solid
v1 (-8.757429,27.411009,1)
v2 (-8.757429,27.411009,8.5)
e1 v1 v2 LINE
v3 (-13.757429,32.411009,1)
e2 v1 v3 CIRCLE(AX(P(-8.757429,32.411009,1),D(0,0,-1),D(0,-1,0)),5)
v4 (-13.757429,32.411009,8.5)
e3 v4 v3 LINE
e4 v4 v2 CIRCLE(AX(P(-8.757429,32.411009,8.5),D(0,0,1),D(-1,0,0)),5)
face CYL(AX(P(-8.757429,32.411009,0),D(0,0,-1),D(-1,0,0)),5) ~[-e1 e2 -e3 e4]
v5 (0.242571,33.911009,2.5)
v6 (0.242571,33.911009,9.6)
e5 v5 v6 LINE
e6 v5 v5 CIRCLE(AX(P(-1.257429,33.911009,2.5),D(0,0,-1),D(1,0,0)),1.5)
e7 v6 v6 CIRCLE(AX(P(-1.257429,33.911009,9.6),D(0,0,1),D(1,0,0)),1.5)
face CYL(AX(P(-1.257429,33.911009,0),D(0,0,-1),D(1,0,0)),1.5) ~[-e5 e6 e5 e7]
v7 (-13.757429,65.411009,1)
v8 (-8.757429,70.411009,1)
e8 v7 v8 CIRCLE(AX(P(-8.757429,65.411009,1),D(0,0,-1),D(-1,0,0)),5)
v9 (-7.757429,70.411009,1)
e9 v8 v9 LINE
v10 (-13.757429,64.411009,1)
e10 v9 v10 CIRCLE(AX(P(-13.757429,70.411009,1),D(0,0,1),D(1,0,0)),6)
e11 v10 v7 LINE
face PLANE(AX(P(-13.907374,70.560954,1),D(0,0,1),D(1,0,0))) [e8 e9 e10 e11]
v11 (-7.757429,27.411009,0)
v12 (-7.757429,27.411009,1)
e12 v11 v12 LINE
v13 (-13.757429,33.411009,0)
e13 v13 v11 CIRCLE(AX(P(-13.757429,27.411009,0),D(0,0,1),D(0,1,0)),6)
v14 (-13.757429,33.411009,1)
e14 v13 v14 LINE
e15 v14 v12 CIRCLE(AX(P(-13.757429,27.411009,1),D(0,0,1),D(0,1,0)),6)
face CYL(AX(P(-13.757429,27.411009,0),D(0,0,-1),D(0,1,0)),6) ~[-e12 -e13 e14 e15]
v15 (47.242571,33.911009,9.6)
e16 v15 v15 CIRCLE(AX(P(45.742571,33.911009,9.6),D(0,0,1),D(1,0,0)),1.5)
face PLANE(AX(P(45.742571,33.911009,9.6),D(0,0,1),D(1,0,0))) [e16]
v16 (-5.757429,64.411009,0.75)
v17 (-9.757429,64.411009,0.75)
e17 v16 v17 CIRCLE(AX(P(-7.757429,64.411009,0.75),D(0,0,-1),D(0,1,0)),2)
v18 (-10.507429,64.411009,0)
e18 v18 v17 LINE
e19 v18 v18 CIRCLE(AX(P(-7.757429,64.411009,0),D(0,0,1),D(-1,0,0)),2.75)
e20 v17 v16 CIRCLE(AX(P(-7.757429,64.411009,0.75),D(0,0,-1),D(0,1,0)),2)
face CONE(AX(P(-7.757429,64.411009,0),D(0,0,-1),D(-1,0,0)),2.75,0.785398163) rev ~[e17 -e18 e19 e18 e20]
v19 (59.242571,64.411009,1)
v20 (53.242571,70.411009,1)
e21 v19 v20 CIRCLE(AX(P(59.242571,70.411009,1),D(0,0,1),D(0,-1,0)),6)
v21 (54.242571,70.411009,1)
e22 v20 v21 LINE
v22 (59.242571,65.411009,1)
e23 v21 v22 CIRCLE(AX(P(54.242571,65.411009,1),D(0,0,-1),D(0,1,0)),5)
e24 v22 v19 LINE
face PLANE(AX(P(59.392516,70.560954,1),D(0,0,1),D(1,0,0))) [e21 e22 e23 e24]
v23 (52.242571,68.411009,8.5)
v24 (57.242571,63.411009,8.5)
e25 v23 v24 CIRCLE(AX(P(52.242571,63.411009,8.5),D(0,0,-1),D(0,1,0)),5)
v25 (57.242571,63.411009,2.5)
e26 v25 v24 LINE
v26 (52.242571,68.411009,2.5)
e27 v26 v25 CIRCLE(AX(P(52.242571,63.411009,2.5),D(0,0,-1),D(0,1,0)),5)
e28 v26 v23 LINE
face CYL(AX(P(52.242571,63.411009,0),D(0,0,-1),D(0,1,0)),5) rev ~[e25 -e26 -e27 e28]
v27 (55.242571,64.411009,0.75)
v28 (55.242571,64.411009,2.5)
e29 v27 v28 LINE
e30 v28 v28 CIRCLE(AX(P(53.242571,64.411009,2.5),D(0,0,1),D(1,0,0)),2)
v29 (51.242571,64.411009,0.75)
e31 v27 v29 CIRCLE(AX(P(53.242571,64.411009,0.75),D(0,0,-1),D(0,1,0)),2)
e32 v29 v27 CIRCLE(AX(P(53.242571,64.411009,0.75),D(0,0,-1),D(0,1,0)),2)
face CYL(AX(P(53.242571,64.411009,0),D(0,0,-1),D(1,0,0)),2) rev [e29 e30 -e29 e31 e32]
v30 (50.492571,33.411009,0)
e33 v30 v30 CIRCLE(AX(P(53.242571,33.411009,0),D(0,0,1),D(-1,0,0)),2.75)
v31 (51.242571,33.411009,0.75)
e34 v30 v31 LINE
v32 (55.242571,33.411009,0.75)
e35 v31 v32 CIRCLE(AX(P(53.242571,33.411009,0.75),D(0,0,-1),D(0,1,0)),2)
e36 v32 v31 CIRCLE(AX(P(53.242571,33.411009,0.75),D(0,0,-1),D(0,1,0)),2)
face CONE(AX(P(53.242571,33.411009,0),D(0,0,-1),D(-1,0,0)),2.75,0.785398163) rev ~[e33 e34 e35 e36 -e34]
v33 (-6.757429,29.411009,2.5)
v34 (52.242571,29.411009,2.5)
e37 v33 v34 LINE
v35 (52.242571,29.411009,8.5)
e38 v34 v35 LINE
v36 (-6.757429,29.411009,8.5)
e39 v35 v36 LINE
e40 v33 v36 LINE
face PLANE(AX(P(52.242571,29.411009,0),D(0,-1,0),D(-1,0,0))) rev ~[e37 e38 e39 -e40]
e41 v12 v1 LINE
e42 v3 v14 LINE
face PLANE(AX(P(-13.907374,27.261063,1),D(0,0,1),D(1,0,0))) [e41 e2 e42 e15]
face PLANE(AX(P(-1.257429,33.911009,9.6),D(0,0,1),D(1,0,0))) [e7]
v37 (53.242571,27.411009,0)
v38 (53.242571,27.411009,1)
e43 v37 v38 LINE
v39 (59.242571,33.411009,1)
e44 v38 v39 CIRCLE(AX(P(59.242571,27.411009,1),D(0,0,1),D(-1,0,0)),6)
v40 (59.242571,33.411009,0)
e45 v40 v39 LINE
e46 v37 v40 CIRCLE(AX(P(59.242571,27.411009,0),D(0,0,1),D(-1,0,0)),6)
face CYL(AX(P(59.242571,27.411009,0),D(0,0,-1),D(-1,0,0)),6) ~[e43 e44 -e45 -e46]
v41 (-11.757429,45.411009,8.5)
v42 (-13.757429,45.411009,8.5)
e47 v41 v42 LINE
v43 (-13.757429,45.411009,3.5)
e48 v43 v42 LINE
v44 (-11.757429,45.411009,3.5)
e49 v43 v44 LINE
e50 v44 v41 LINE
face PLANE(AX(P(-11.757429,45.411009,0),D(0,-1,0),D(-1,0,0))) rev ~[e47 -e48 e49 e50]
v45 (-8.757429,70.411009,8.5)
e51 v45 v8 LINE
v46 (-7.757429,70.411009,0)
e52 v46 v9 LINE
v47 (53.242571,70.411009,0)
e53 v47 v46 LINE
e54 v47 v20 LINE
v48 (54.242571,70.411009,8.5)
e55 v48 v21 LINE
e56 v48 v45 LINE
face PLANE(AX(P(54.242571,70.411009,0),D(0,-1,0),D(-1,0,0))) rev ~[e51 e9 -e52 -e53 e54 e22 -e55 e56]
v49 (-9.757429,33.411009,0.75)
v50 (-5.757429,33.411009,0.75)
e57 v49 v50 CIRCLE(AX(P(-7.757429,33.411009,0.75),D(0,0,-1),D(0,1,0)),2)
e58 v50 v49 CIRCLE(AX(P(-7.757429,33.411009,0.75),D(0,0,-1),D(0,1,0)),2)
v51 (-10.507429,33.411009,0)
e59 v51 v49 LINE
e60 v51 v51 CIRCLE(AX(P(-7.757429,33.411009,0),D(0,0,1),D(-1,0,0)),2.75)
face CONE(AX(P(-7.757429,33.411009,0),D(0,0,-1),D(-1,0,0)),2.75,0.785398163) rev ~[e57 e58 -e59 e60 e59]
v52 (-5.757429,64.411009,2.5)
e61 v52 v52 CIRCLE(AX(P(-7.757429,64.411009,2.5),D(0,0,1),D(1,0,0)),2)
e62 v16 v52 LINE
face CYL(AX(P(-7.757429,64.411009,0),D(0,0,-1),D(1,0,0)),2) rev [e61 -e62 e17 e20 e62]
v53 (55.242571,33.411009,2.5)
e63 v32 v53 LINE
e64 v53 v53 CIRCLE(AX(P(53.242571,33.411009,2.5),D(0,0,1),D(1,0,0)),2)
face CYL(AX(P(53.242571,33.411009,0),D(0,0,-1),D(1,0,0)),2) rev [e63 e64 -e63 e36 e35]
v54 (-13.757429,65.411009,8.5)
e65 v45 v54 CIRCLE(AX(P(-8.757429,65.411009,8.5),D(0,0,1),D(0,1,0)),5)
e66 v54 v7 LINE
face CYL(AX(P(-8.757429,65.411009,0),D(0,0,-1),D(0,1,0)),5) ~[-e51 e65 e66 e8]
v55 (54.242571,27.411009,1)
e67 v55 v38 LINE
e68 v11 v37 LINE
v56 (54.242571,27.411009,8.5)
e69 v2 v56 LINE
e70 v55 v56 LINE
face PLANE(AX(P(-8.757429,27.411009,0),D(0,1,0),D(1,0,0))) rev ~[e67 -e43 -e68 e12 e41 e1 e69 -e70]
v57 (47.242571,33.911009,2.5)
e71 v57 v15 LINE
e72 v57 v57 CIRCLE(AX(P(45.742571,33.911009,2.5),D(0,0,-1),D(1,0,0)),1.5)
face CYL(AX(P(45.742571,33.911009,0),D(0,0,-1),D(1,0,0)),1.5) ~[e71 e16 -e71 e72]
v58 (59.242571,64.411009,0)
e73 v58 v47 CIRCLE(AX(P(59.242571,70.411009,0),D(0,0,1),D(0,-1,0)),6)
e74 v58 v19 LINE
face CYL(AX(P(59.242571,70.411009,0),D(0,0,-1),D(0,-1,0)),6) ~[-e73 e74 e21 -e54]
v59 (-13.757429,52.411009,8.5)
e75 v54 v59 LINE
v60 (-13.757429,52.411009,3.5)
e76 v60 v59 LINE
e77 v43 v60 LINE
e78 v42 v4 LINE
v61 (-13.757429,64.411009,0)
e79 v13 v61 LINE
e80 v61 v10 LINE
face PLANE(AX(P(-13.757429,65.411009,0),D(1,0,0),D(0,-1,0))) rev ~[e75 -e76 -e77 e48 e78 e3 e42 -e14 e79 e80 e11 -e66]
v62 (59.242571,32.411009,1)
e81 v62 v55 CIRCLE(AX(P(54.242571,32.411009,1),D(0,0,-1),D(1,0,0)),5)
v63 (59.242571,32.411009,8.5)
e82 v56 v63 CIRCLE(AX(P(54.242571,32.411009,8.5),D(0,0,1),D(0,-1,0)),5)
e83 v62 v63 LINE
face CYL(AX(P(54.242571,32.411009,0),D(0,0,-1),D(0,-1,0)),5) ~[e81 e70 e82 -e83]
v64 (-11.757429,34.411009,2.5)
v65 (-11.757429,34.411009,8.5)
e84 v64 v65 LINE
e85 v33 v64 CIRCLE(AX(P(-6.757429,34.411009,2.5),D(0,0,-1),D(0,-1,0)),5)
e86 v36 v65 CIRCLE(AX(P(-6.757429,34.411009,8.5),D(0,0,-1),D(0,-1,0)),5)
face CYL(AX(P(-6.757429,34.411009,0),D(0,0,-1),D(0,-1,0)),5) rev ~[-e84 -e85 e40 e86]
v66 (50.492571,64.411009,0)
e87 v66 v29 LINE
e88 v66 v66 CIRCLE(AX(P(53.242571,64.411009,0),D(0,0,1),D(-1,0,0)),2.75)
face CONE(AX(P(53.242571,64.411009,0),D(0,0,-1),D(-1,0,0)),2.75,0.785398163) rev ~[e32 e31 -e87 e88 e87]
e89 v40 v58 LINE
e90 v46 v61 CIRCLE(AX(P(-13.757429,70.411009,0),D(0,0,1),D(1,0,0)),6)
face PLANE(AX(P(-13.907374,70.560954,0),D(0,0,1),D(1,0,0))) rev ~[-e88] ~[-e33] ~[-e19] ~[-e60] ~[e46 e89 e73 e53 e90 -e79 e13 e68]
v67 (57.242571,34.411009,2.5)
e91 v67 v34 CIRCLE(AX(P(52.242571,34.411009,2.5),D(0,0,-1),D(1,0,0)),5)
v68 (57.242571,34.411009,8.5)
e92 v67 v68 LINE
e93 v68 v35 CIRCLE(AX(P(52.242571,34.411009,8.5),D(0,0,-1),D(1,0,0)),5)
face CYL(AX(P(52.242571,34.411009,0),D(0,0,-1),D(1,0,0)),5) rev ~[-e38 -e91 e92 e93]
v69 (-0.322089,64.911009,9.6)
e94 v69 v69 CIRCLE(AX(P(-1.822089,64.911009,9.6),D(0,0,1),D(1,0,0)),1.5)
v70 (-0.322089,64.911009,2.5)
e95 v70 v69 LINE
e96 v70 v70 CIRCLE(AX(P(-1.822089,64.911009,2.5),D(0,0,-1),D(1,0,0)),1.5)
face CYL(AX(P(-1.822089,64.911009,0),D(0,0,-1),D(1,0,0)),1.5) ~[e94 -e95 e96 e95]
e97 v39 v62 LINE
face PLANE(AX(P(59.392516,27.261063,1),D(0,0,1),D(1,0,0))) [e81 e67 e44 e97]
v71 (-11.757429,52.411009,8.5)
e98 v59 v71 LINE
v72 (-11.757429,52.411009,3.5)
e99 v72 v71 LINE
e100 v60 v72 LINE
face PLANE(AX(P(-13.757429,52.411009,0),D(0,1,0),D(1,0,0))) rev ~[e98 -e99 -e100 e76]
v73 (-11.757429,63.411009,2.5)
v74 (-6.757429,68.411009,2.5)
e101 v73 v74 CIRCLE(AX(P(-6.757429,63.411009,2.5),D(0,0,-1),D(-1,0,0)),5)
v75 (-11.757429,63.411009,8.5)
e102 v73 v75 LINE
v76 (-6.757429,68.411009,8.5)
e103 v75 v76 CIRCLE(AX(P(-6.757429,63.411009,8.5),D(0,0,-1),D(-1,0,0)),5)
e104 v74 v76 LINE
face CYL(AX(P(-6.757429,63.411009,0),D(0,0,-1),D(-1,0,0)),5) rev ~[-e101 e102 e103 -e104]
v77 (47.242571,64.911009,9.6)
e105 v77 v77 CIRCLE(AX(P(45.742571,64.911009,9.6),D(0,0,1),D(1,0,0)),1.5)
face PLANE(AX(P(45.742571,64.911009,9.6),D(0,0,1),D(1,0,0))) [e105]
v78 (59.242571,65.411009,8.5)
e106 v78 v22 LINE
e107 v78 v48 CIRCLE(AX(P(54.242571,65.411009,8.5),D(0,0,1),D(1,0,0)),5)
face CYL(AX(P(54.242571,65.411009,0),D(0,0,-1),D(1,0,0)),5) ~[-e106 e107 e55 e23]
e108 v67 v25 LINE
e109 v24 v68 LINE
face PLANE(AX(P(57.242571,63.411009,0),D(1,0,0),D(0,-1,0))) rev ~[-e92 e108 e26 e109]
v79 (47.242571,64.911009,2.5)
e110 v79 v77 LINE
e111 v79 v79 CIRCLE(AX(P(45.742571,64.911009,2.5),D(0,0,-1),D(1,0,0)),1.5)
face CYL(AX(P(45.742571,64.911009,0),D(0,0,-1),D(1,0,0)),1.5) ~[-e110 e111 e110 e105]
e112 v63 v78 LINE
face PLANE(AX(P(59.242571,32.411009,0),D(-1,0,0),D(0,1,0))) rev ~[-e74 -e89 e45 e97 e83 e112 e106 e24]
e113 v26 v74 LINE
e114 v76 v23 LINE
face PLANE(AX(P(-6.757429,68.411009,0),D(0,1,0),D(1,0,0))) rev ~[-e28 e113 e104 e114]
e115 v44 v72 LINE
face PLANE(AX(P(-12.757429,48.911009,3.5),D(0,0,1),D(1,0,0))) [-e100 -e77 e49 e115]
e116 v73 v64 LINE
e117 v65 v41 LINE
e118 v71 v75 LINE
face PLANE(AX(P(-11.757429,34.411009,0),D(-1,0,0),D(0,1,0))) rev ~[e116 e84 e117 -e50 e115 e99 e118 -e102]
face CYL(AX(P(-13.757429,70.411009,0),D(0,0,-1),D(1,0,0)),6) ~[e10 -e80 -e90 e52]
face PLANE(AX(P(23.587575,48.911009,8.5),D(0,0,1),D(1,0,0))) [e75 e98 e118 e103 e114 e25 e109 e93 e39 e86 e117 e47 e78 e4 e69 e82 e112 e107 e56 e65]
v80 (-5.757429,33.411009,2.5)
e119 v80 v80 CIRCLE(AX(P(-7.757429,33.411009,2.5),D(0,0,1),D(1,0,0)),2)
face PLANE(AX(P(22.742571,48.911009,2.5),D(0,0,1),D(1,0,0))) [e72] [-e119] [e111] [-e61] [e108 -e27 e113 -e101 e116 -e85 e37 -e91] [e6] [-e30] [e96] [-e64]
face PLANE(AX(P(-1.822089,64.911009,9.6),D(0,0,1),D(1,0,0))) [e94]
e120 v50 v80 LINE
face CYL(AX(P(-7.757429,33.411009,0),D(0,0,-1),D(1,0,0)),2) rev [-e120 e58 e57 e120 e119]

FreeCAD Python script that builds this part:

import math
import FreeCAD as App
import Part
import Sketcher
from FreeCAD import Vector
Q = App.Units.Quantity

doc = App.newDocument("Part")
body = doc.addObject("PartDesign::Body", "Body")

sketch1 = body.newObject("Sketcher::SketchObject", "Sketch")
sketch1.AttachmentSupport = (doc.getObject("XY_Plane"), [""])
sketch1.MapMode = "FlatFace"
sketch1.addGeometry(Part.ArcOfCircle(Part.Circle(Vector(-8.8, 32.4, 0), Vector(0, 0, 1), 5), math.radians(-180), math.radians(-90)), False)
sketch1.addGeometry(Part.LineSegment(Vector(-8.8, 27.4, 0), Vector(54.2, 27.4, 0)), False)
sketch1.addGeometry(Part.ArcOfCircle(Part.Circle(Vector(54.2, 32.4, 0), Vector(0, 0, 1), 5), math.radians(-90), math.radians(0)), False)
sketch1.addGeometry(Part.LineSegment(Vector(59.2, 32.4, 0), Vector(59.2, 65.4, 0)), False)
sketch1.addGeometry(Part.ArcOfCircle(Part.Circle(Vector(54.2, 65.4, 0), Vector(0, 0, 1), 5), math.radians(0), math.radians(90)), False)
sketch1.addGeometry(Part.LineSegment(Vector(54.2, 70.4, 0), Vector(-8.8, 70.4, 0)), False)
sketch1.addGeometry(Part.ArcOfCircle(Part.Circle(Vector(-8.8, 65.4, 0), Vector(0, 0, 1), 5), math.radians(90), math.radians(180)), False)
sketch1.addGeometry(Part.LineSegment(Vector(-13.8, 65.4, 0), Vector(-13.8, 32.4, 0)), False)
sketch1.addGeometry(Part.Circle(Vector(-7.8, 33.4, 0), Vector(0, 0, 1), 2), False)
sketch1.addGeometry(Part.Circle(Vector(53.2, 33.4, 0), Vector(0, 0, 1), 2), False)
sketch1.addGeometry(Part.Circle(Vector(-7.8, 64.4, 0), Vector(0, 0, 1), 2), False)
sketch1.addGeometry(Part.Circle(Vector(53.2, 64.4, 0), Vector(0, 0, 1), 2), False)
sketch1.addConstraint(Sketcher.Constraint("Tangent", 0, 2, 1, 1))
sketch1.addConstraint(Sketcher.Constraint("Tangent", 1, 2, 2, 1))
sketch1.addConstraint(Sketcher.Constraint("Tangent", 2, 2, 3, 1))
sketch1.addConstraint(Sketcher.Constraint("Tangent", 3, 2, 4, 1))
sketch1.addConstraint(Sketcher.Constraint("Tangent", 4, 2, 5, 1))
sketch1.addConstraint(Sketcher.Constraint("Tangent", 5, 2, 6, 1))
sketch1.addConstraint(Sketcher.Constraint("Tangent", 6, 2, 7, 1))
sketch1.addConstraint(Sketcher.Constraint("Tangent", 7, 2, 0, 1))
sketch1.addConstraint(Sketcher.Constraint("Horizontal", 1))
sketch1.addConstraint(Sketcher.Constraint("Vertical", 3))
sketch1.addConstraint(Sketcher.Constraint("Horizontal", 5))
sketch1.addConstraint(Sketcher.Constraint("Vertical", 7))
sketch1.addConstraint(Sketcher.Constraint("Equal", 0, 2))
sketch1.addConstraint(Sketcher.Constraint("Equal", 2, 4))
sketch1.addConstraint(Sketcher.Constraint("Equal", 4, 6))
sketch1.addConstraint(Sketcher.Constraint("Equal", 8, 9))
sketch1.addConstraint(Sketcher.Constraint("Equal", 9, 10))
sketch1.addConstraint(Sketcher.Constraint("Equal", 10, 11))
sketch1.addConstraint(Sketcher.Constraint("Horizontal", 8, 3, 9, 3))
sketch1.addConstraint(Sketcher.Constraint("Horizontal", 10, 3, 11, 3))
sketch1.addConstraint(Sketcher.Constraint("Vertical", 8, 3, 10, 3))
sketch1.addConstraint(Sketcher.Constraint("Vertical", 9, 3, 11, 3))
sketch1.addConstraint(Sketcher.Constraint("Diameter", 8, Q("4 mm")))
sketch1.addConstraint(Sketcher.Constraint("Radius", 0, Q("5 mm")))
sketch1.addConstraint(Sketcher.Constraint("DistanceX", 1, 1, 1, 2, Q("63 mm")))
sketch1.addConstraint(Sketcher.Constraint("DistanceY", 3, 1, 3, 2, Q("33 mm")))
sketch1.addConstraint(Sketcher.Constraint("DistanceX", 0, 3, 8, 3, Q("1 mm")))
sketch1.addConstraint(Sketcher.Constraint("DistanceY", 0, 3, 8, 3, Q("1 mm")))
sketch1.addConstraint(Sketcher.Constraint("DistanceX", 9, 3, 2, 3, Q("1 mm")))
sketch1.addConstraint(Sketcher.Constraint("DistanceY", 10, 3, 6, 3, Q("1 mm")))
sketch1.addConstraint(Sketcher.Constraint("DistanceX", 0, 3, -1, 1, Q("8.757429 mm")))
sketch1.addConstraint(Sketcher.Constraint("DistanceY", -1, 1, 0, 3, Q("32.411009 mm")))
pad1 = body.newObject("PartDesign::Pad", "Pad")
pad1.Profile = sketch1
pad1.Length = 2.5

sketch2 = body.newObject("Sketcher::SketchObject", "Sketch001")
sketch2.AttachmentSupport = (doc.getObject("XY_Plane"), [""])
sketch2.MapMode = "FlatFace"
sketch2.addGeometry(Part.ArcOfCircle(Part.Circle(Vector(-6.8, 63.4, 0), Vector(0, 0, 1), 5), math.radians(90), math.radians(180)), False)
sketch2.addGeometry(Part.LineSegment(Vector(-6.8, 68.4, 0), Vector(52.2, 68.4, 0)), False)
sketch2.addGeometry(Part.ArcOfCircle(Part.Circle(Vector(52.2, 63.4, 0), Vector(0, 0, 1), 5), math.radians(0), math.radians(90)), False)
sketch2.addGeometry(Part.LineSegment(Vector(57.2, 63.4, 0), Vector(57.2, 34.4, 0)), False)
sketch2.addGeometry(Part.ArcOfCircle(Part.Circle(Vector(52.2, 34.4, 0), Vector(0, 0, 1), 5), math.radians(-90), math.radians(0)), False)
sketch2.addGeometry(Part.LineSegment(Vector(52.2, 29.4, 0), Vector(-6.8, 29.4, 0)), False)
sketch2.addGeometry(Part.ArcOfCircle(Part.Circle(Vector(-6.8, 34.4, 0), Vector(0, 0, 1), 5), math.radians(-180), math.radians(-90)), False)
sketch2.addGeometry(Part.LineSegment(Vector(-11.8, 34.4, 0), Vector(-11.8, 45.4, 0)), False)
sketch2.addGeometry(Part.LineSegment(Vector(-11.8, 45.4, 0), Vector(-13.8, 45.4, 0)), False)
sketch2.addGeometry(Part.LineSegment(Vector(-13.8, 45.4, 0), Vector(-13.8, 32.4, 0)), False)
sketch2.addGeometry(Part.ArcOfCircle(Part.Circle(Vector(-8.8, 32.4, 0), Vector(0, 0, 1), 5), math.radians(-180), math.radians(-90)), False)
sketch2.addGeometry(Part.LineSegment(Vector(-8.8, 27.4, 0), Vector(54.2, 27.4, 0)), False)
sketch2.addGeometry(Part.ArcOfCircle(Part.Circle(Vector(54.2, 32.4, 0), Vector(0, 0, 1), 5), math.radians(-90), math.radians(0)), False)
sketch2.addGeometry(Part.LineSegment(Vector(59.2, 32.4, 0), Vector(59.2, 65.4, 0)), False)
sketch2.addGeometry(Part.ArcOfCircle(Part.Circle(Vector(54.2, 65.4, 0), Vector(0, 0, 1), 5), math.radians(0), math.radians(90)), False)
sketch2.addGeometry(Part.LineSegment(Vector(54.2, 70.4, 0), Vector(-8.8, 70.4, 0)), False)
sketch2.addGeometry(Part.ArcOfCircle(Part.Circle(Vector(-8.8, 65.4, 0), Vector(0, 0, 1), 5), math.radians(90), math.radians(180)), False)
sketch2.addGeometry(Part.LineSegment(Vector(-13.8, 65.4, 0), Vector(-13.8, 52.4, 0)), False)
sketch2.addGeometry(Part.LineSegment(Vector(-13.8, 52.4, 0), Vector(-11.8, 52.4, 0)), False)
sketch2.addGeometry(Part.LineSegment(Vector(-11.8, 52.4, 0), Vector(-11.8, 63.4, 0)), False)
sketch2.addConstraint(Sketcher.Constraint("Tangent", 0, 1, 1, 1))
sketch2.addConstraint(Sketcher.Constraint("Tangent", 1, 2, 2, 2))
sketch2.addConstraint(Sketcher.Constraint("Tangent", 2, 1, 3, 1))
sketch2.addConstraint(Sketcher.Constraint("Tangent", 3, 2, 4, 2))
sketch2.addConstraint(Sketcher.Constraint("Tangent", 4, 1, 5, 1))
sketch2.addConstraint(Sketcher.Constraint("Tangent", 5, 2, 6, 2))
sketch2.addConstraint(Sketcher.Constraint("Tangent", 6, 1, 7, 1))
sketch2.addConstraint(Sketcher.Constraint("Coincident", 7, 2, 8, 1))
sketch2.addConstraint(Sketcher.Constraint("Coincident", 8, 2, 9, 1))
sketch2.addConstraint(Sketcher.Constraint("Tangent", 9, 2, 10, 1))
sketch2.addConstraint(Sketcher.Constraint("Tangent", 10, 2, 11, 1))
sketch2.addConstraint(Sketcher.Constraint("Tangent", 11, 2, 12, 1))
sketch2.addConstraint(Sketcher.Constraint("Tangent", 12, 2, 13, 1))
sketch2.addConstraint(Sketcher.Constraint("Tangent", 13, 2, 14, 1))
sketch2.addConstraint(Sketcher.Constraint("Tangent", 14, 2, 15, 1))
sketch2.addConstraint(Sketcher.Constraint("Tangent", 15, 2, 16, 1))
sketch2.addConstraint(Sketcher.Constraint("Tangent", 16, 2, 17, 1))
sketch2.addConstraint(Sketcher.Constraint("Coincident", 17, 2, 18, 1))
sketch2.addConstraint(Sketcher.Constraint("Coincident", 18, 2, 19, 1))
sketch2.addConstraint(Sketcher.Constraint("Tangent", 19, 2, 0, 2))
sketch2.addConstraint(Sketcher.Constraint("Horizontal", 1))
sketch2.addConstraint(Sketcher.Constraint("Vertical", 3))
sketch2.addConstraint(Sketcher.Constraint("Horizontal", 5))
sketch2.addConstraint(Sketcher.Constraint("Vertical", 7))
sketch2.addConstraint(Sketcher.Constraint("Horizontal", 8))
sketch2.addConstraint(Sketcher.Constraint("Vertical", 9))
sketch2.addConstraint(Sketcher.Constraint("Horizontal", 11))
sketch2.addConstraint(Sketcher.Constraint("Vertical", 13))
sketch2.addConstraint(Sketcher.Constraint("Horizontal", 15))
sketch2.addConstraint(Sketcher.Constraint("Vertical", 17))
sketch2.addConstraint(Sketcher.Constraint("Horizontal", 18))
sketch2.addConstraint(Sketcher.Constraint("Vertical", 19))
sketch2.addConstraint(Sketcher.Constraint("Equal", 0, 2))
sketch2.addConstraint(Sketcher.Constraint("Equal", 2, 4))
sketch2.addConstraint(Sketcher.Constraint("Equal", 4, 6))
sketch2.addConstraint(Sketcher.Constraint("Equal", 6, 10))
sketch2.addConstraint(Sketcher.Constraint("Equal", 10, 12))
sketch2.addConstraint(Sketcher.Constraint("Equal", 12, 14))
sketch2.addConstraint(Sketcher.Constraint("Equal", 14, 16))
sketch2.addConstraint(Sketcher.Constraint("Vertical", 0, 3, 6, 3))
sketch2.addConstraint(Sketcher.Constraint("Vertical", 10, 3, 16, 3))
sketch2.addConstraint(Sketcher.Constraint("Equal", 9, 17))
sketch2.addConstraint(Sketcher.Constraint("Equal", 7, 19))
sketch2.addConstraint(Sketcher.Constraint("Radius", 0, Q("5 mm")))
sketch2.addConstraint(Sketcher.Constraint("DistanceX", 1, 1, 1, 2, Q("59 mm")))
sketch2.addConstraint(Sketcher.Constraint("DistanceX", 8, 2, 8, 1, Q("2 mm")))
sketch2.addConstraint(Sketcher.Constraint("DistanceX", 11, 1, 11, 2, Q("63 mm")))
sketch2.addConstraint(Sketcher.Constraint("DistanceY", 3, 2, 3, 1, Q("29 mm")))
sketch2.addConstraint(Sketcher.Constraint("DistanceY", 7, 1, 7, 2, Q("11 mm")))
sketch2.addConstraint(Sketcher.Constraint("DistanceY", 9, 2, 9, 1, Q("13 mm")))
sketch2.addConstraint(Sketcher.Constraint("DistanceX", 0, 3, -1, 1, Q("6.757429 mm")))
sketch2.addConstraint(Sketcher.Constraint("DistanceY", -1, 1, 0, 3, Q("63.411009 mm")))
pad2 = body.newObject("PartDesign::Pad", "Pad001")
pad2.Profile = sketch2
pad2.Length = 8.5

sketch3 = body.newObject("Sketcher::SketchObject", "Sketch002")
sketch3.AttachmentSupport = (doc.getObject("XY_Plane"), [""])
sketch3.MapMode = "FlatFace"
sketch3.addGeometry(Part.Circle(Vector(-1.8, 64.9, 0), Vector(0, 0, 1), 1.5), False)
sketch3.addGeometry(Part.Circle(Vector(-1.3, 33.9, 0), Vector(0, 0, 1), 1.5), False)
sketch3.addGeometry(Part.Circle(Vector(45.7, 33.9, 0), Vector(0, 0, 1), 1.5), False)
sketch3.addGeometry(Part.Circle(Vector(45.7, 64.9, 0), Vector(0, 0, 1), 1.5), False)
sketch3.addConstraint(Sketcher.Constraint("Equal", 0, 1))
sketch3.addConstraint(Sketcher.Constraint("Equal", 1, 2))
sketch3.addConstraint(Sketcher.Constraint("Equal", 2, 3))
sketch3.addConstraint(Sketcher.Constraint("Horizontal", 1, 3, 2, 3))
sketch3.addConstraint(Sketcher.Constraint("Horizontal", 0, 3, 3, 3))
sketch3.addConstraint(Sketcher.Constraint("Vertical", 2, 3, 3, 3))
sketch3.addConstraint(Sketcher.Constraint("Diameter", 0, Q("3 mm")))
sketch3.addConstraint(Sketcher.Constraint("DistanceY", 1, 3, 0, 3, Q("31 mm")))
sketch3.addConstraint(Sketcher.Constraint("DistanceX", 1, 3, 2, 3, Q("47 mm")))
sketch3.addConstraint(Sketcher.Constraint("DistanceX", 0, 3, -1, 1, Q("1.822089 mm")))
sketch3.addConstraint(Sketcher.Constraint("DistanceY", -1, 1, 0, 3, Q("64.911009 mm")))
sketch3.addConstraint(Sketcher.Constraint("DistanceX", 1, 3, -1, 1, Q("1.257429 mm")))
pad3 = body.newObject("PartDesign::Pad", "Pad002")
pad3.Profile = sketch3
pad3.Length = 9.6

sketch4 = body.newObject("Sketcher::SketchObject", "Sketch003")
sketch4.AttachmentSupport = (doc.getObject("XY_Plane"), [""])
sketch4.MapMode = "FlatFace"
sketch4.addGeometry(Part.LineSegment(Vector(-13.8, 52.4, 0), Vector(-13.8, 45.4, 0)), False)
sketch4.addGeometry(Part.LineSegment(Vector(-13.8, 45.4, 0), Vector(-11.8, 45.4, 0)), False)
sketch4.addGeometry(Part.LineSegment(Vector(-11.8, 45.4, 0), Vector(-11.8, 52.4, 0)), False)
sketch4.addGeometry(Part.LineSegment(Vector(-11.8, 52.4, 0), Vector(-13.8, 52.4, 0)), False)
sketch4.addConstraint(Sketcher.Constraint("Coincident", 0, 2, 1, 1))
sketch4.addConstraint(Sketcher.Constraint("Coincident", 1, 2, 2, 1))
sketch4.addConstraint(Sketcher.Constraint("Coincident", 2, 2, 3, 1))
sketch4.addConstraint(Sketcher.Constraint("Coincident", 3, 2, 0, 1))
sketch4.addConstraint(Sketcher.Constraint("Vertical", 0))
sketch4.addConstraint(Sketcher.Constraint("Horizontal", 1))
sketch4.addConstraint(Sketcher.Constraint("Vertical", 2))
sketch4.addConstraint(Sketcher.Constraint("Horizontal", 3))
sketch4.addConstraint(Sketcher.Constraint("DistanceX", 1, 1, 1, 2, Q("2 mm")))
sketch4.addConstraint(Sketcher.Constraint("DistanceY", 0, 2, 0, 1, Q("7 mm")))
sketch4.addConstraint(Sketcher.Constraint("DistanceX", 0, 2, -1, 1, Q("13.757429 mm")))
sketch4.addConstraint(Sketcher.Constraint("DistanceY", -1, 1, 0, 2, Q("45.411009 mm")))
pad4 = body.newObject("PartDesign::Pad", "Pad003")
pad4.Profile = sketch4
pad4.Length = 3.5

sketch5 = body.newObject("Sketcher::SketchObject", "Sketch004")
sketch5.AttachmentSupport = (doc.getObject("XY_Plane"), [""])
sketch5.MapMode = "FlatFace"
sketch5.addGeometry(Part.Circle(Vector(53.2, 64.4, 0), Vector(0, 0, 1), 1.5), False)
sketch5.addGeometry(Part.Circle(Vector(53.2, 33.4, 0), Vector(0, 0, 1), 1.5), False)
sketch5.addGeometry(Part.Circle(Vector(-7.8, 33.4, 0), Vector(0, 0, 1), 1.5), False)
sketch5.addGeometry(Part.Circle(Vector(-7.8, 64.4, 0), Vector(0, 0, 1), 1.5), False)
sketch5.addConstraint(Sketcher.Constraint("Equal", 0, 1))
sketch5.addConstraint(Sketcher.Constraint("Equal", 1, 2))
sketch5.addConstraint(Sketcher.Constraint("Equal", 2, 3))
sketch5.addConstraint(Sketcher.Constraint("Horizontal", 1, 3, 2, 3))
sketch5.addConstraint(Sketcher.Constraint("Horizontal", 0, 3, 3, 3))
sketch5.addConstraint(Sketcher.Constraint("Vertical", 0, 3, 1, 3))
sketch5.addConstraint(Sketcher.Constraint("Vertical", 2, 3, 3, 3))
sketch5.addConstraint(Sketcher.Constraint("Diameter", 0, Q("3 mm")))
sketch5.addConstraint(Sketcher.Constraint("DistanceY", 1, 3, 0, 3, Q("31 mm")))
sketch5.addConstraint(Sketcher.Constraint("DistanceX", 2, 3, 1, 3, Q("61 mm")))
sketch5.addConstraint(Sketcher.Constraint("DistanceX", -1, 1, 0, 3, Q("53.242571 mm")))
sketch5.addConstraint(Sketcher.Constraint("DistanceY", -1, 1, 0, 3, Q("64.411009 mm")))
doc.recompute()
hole = body.newObject("PartDesign::Hole", "Hole")
hole.Profile = sketch5
hole.ThreadType = "None"
hole.Diameter = 3
hole.DepthType = "ThroughAll"
hole.HoleCutType = "Countersink"
hole.HoleCutDiameter = 5.5
hole.HoleCutCountersinkAngle = 90
hole.Reversed = True

sketch6 = body.newObject("Sketcher::SketchObject", "Sketch005")
sketch6.AttachmentSupport = (doc.getObject("XY_Plane"), [""])
sketch6.MapMode = "FlatFace"
sketch6.addGeometry(Part.ArcOfCircle(Part.Circle(Vector(-13.8, 70.4, 0), Vector(0, 0, 1), 6), math.radians(0), math.radians(270)), False)
sketch6.addGeometry(Part.LineSegment(Vector(-13.8, 64.4, 0), Vector(-13.8, 65.4, 0)), False)
sketch6.addGeometry(Part.ArcOfCircle(Part.Circle(Vector(-8.8, 65.4, 0), Vector(0, 0, 1), 5), math.radians(90), math.radians(180)), False)
sketch6.addGeometry(Part.LineSegment(Vector(-8.8, 70.4, 0), Vector(-7.8, 70.4, 0)), False)
sketch6.addGeometry(Part.ArcOfCircle(Part.Circle(Vector(59.2, 70.4, 0), Vector(0, 0, 1), 6), math.radians(-90), math.radians(180)), False)
sketch6.addGeometry(Part.LineSegment(Vector(53.2, 70.4, 0), Vector(54.2, 70.4, 0)), False)
sketch6.addGeometry(Part.ArcOfCircle(Part.Circle(Vector(54.2, 65.4, 0), Vector(0, 0, 1), 5), math.radians(0), math.radians(90)), False)
sketch6.addGeometry(Part.LineSegment(Vector(59.2, 65.4, 0), Vector(59.2, 64.4, 0)), False)
sketch6.addGeometry(Part.LineSegment(Vector(54.2, 27.4, 0), Vector(53.2, 27.4, 0)), False)
sketch6.addGeometry(Part.ArcOfCircle(Part.Circle(Vector(59.2, 27.4, 0), Vector(0, 0, 1), 6), math.radians(-180), math.radians(90)), False)
sketch6.addGeometry(Part.LineSegment(Vector(59.2, 33.4, 0), Vector(59.2, 32.4, 0)), False)
sketch6.addGeometry(Part.ArcOfCircle(Part.Circle(Vector(54.2, 32.4, 0), Vector(0, 0, 1), 5), math.radians(-90), math.radians(0)), False)
sketch6.addGeometry(Part.LineSegment(Vector(-13.8, 32.4, 0), Vector(-13.8, 33.4, 0)), False)
sketch6.addGeometry(Part.ArcOfCircle(Part.Circle(Vector(-13.8, 27.4, 0), Vector(0, 0, 1), 6), math.radians(90), math.radians(360)), False)
sketch6.addGeometry(Part.LineSegment(Vector(-7.8, 27.4, 0), Vector(-8.8, 27.4, 0)), False)
sketch6.addGeometry(Part.ArcOfCircle(Part.Circle(Vector(-8.8, 32.4, 0), Vector(0, 0, 1), 5), math.radians(-180), math.radians(-90)), False)
sketch6.addConstraint(Sketcher.Constraint("Coincident", 0, 2, 1, 1))
sketch6.addConstraint(Sketcher.Constraint("Tangent", 1, 2, 2, 2))
sketch6.addConstraint(Sketcher.Constraint("Tangent", 2, 1, 3, 1))
sketch6.addConstraint(Sketcher.Constraint("Coincident", 3, 2, 0, 1))
sketch6.addConstraint(Sketcher.Constraint("Coincident", 4, 2, 5, 1))
sketch6.addConstraint(Sketcher.Constraint("Tangent", 5, 2, 6, 2))
sketch6.addConstraint(Sketcher.Constraint("Tangent", 6, 1, 7, 1))
sketch6.addConstraint(Sketcher.Constraint("Coincident", 7, 2, 4, 1))
sketch6.addConstraint(Sketcher.Constraint("Coincident", 8, 2, 9, 1))
sketch6.addConstraint(Sketcher.Constraint("Coincident", 9, 2, 10, 1))
sketch6.addConstraint(Sketcher.Constraint("Tangent", 10, 2, 11, 2))
sketch6.addConstraint(Sketcher.Constraint("Tangent", 11, 1, 8, 1))
sketch6.addConstraint(Sketcher.Constraint("Coincident", 12, 2, 13, 1))
sketch6.addConstraint(Sketcher.Constraint("Coincident", 13, 2, 14, 1))
sketch6.addConstraint(Sketcher.Constraint("Tangent", 14, 2, 15, 2))
sketch6.addConstraint(Sketcher.Constraint("Tangent", 15, 1, 12, 1))
sketch6.addConstraint(Sketcher.Constraint("Vertical", 1))
sketch6.addConstraint(Sketcher.Constraint("Horizontal", 3))
sketch6.addConstraint(Sketcher.Constraint("Horizontal", 5))
sketch6.addConstraint(Sketcher.Constraint("Vertical", 7))
sketch6.addConstraint(Sketcher.Constraint("Horizontal", 8))
sketch6.addConstraint(Sketcher.Constraint("Vertical", 10))
sketch6.addConstraint(Sketcher.Constraint("Vertical", 12))
sketch6.addConstraint(Sketcher.Constraint("Horizontal", 14))
sketch6.addConstraint(Sketcher.Constraint("Equal", 0, 4))
sketch6.addConstraint(Sketcher.Constraint("Equal", 2, 6))
sketch6.addConstraint(Sketcher.Constraint("Equal", 4, 9))
sketch6.addConstraint(Sketcher.Constraint("Equal", 6, 11))
sketch6.addConstraint(Sketcher.Constraint("Equal", 9, 13))
sketch6.addConstraint(Sketcher.Constraint("Equal", 11, 15))
sketch6.addConstraint(Sketcher.Constraint("Horizontal", 0, 3, 4, 3))
sketch6.addConstraint(Sketcher.Constraint("Horizontal", 2, 3, 6, 3))
sketch6.addConstraint(Sketcher.Constraint("Horizontal", 9, 3, 13, 3))
sketch6.addConstraint(Sketcher.Constraint("Horizontal", 11, 3, 15, 3))
sketch6.addConstraint(Sketcher.Constraint("Horizontal", 4, 3, 2, 1))
sketch6.addConstraint(Sketcher.Constraint("Horizontal", 13, 3, 8, 2))
sketch6.addConstraint(Sketcher.Constraint("Vertical", 4, 3, 9, 3))
sketch6.addConstraint(Sketcher.Constraint("Vertical", 6, 3, 11, 3))
sketch6.addConstraint(Sketcher.Constraint("Vertical", 0, 3, 13, 3))
sketch6.addConstraint(Sketcher.Constraint("Vertical", 2, 3, 15, 3))
sketch6.addConstraint(Sketcher.Constraint("Vertical", 13, 3, 0, 2))
sketch6.addConstraint(Sketcher.Constraint("Vertical", 9, 3, 6, 1))
sketch6.addConstraint(Sketcher.Constraint("Radius", 0, Q("6 mm")))
sketch6.addConstraint(Sketcher.Constraint("Radius", 2, Q("5 mm")))
sketch6.addConstraint(Sketcher.Constraint("DistanceX", 2, 3, 4, 3, Q("68 mm")))
sketch6.addConstraint(Sketcher.Constraint("DistanceY", 9, 3, 6, 3, Q("38 mm")))
sketch6.addConstraint(Sketcher.Constraint("DistanceX", 0, 3, -1, 1, Q("13.757429 mm")))
sketch6.addConstraint(Sketcher.Constraint("DistanceY", -1, 1, 0, 3, Q("70.411009 mm")))
pad5 = body.newObject("PartDesign::Pad", "Pad004")
pad5.Profile = sketch6
pad5.Length = 1

doc.recompute()
